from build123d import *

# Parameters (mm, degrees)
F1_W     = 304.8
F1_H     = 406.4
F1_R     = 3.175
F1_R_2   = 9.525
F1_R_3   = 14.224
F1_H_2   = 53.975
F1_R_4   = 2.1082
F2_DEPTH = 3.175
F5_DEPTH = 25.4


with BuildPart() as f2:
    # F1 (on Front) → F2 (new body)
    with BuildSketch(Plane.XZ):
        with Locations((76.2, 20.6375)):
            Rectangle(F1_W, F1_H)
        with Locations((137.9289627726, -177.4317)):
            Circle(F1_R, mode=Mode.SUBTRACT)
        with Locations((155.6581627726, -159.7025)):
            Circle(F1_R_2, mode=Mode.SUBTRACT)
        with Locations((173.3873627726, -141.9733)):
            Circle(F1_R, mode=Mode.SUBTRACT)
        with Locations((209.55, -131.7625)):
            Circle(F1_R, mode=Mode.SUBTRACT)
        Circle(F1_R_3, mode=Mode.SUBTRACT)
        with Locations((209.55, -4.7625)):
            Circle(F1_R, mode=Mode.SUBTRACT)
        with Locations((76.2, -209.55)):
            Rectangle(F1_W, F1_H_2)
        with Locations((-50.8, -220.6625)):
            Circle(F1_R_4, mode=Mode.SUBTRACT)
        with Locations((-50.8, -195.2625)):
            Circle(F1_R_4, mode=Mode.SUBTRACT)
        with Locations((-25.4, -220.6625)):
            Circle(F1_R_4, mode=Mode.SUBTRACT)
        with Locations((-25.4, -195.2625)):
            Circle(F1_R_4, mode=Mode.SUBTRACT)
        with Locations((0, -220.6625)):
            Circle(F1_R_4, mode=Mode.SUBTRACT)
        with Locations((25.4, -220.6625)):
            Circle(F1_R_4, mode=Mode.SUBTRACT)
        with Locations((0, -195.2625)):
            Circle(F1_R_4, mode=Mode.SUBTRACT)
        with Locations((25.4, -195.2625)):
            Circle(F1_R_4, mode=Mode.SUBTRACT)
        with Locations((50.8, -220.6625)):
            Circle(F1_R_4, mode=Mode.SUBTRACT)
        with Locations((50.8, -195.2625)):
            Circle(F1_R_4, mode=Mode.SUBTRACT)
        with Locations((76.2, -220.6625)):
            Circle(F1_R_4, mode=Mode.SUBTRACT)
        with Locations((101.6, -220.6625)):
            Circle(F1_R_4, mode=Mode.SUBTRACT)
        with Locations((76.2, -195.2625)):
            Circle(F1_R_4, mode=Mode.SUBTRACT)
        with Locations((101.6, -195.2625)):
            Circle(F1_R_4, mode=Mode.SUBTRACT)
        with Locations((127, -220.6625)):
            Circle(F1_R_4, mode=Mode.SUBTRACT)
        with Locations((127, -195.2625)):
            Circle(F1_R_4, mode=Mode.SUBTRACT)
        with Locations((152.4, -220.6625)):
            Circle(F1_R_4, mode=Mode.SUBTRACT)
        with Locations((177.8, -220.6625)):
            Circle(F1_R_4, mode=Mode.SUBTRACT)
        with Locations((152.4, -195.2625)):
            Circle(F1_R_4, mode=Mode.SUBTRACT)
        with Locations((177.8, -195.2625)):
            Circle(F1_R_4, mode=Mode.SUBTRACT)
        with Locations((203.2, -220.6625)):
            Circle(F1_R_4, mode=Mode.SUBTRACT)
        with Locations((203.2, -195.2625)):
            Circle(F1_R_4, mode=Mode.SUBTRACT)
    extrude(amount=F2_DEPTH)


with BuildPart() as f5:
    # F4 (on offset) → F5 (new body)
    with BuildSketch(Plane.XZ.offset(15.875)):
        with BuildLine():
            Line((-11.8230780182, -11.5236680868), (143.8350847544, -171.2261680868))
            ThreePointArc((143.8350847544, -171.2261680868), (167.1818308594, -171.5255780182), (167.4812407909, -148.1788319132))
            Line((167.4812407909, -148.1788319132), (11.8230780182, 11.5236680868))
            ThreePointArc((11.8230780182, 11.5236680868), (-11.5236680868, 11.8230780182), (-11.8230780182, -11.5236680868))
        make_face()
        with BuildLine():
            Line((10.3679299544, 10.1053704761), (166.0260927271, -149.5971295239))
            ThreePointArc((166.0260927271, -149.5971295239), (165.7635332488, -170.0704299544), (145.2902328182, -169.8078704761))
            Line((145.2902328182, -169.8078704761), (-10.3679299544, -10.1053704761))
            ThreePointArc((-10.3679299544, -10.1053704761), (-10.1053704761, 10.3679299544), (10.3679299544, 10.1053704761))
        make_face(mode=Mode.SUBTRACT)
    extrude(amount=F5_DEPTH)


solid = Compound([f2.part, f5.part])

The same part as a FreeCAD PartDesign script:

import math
import FreeCAD as App
import Part
import Sketcher

V = App.Vector
Q = App.Units.Quantity


def add_polygon(sketch, points):
    """Adds a closed chain of lines whose ends are joined by coincident constraints."""
    first, n = sketch.GeometryCount, len(points)
    for a, b in zip(points, points[1:] + points[:1]):
        sketch.addGeometry(Part.LineSegment(App.Vector(*a, 0), App.Vector(*b, 0)), False)
    for i in range(n):
        sketch.addConstraint(Sketcher.Constraint("Coincident", first + i, 2, first + (i + 1) % n, 1))

doc = App.newDocument("Part")
params = doc.addObject("Spreadsheet::Sheet", "Params")
for row, (alias, value) in enumerate([
    ("sketch1_diameter", "0.25 in"),
    ("sketch1_diameter2", "0.75 in"),
    ("sketch1_diameter3", "1.12 in"),
    ("sketch1_width", "12 in"),
    ("sketch1_diameter4", "0.166 in"),
    ("pad1_length", "0.125 in"),
    ("sketch2_radius", "0.65 in"),
    ("sketch2_radius2", "0.57 in"),
    ("sketch2_length", "8.78 in"),
    ("pad2_length", "1 in"),
], start=1):
    params.set(f"A{row}", alias)
    params.set(f"B{row}", "=" + value)
    params.setAlias(f"B{row}", alias)

body = doc.addObject("PartDesign::Body", "Body")

# Sketch on XZ plane
sketch1 = doc.addObject("Sketcher::SketchObject", "Sketch")
body.addObject(sketch1)
sketch1.AttachmentSupport = (doc.XZ_Plane, [""])
sketch1.MapMode = "FlatFace"
add_polygon(sketch1, [(-76.2, 223.8), (-76.2, -236.5), (228.6, -236.5), (228.6, 223.8)])  # lines 0-3
sketch1.addGeometry(Part.Circle(V(-50.8, -220.7, 0), V(0, 0, 1), 2.1), False)  # 4
sketch1.addGeometry(Part.Circle(V(-25.4, -220.7, 0), V(0, 0, 1), 2.1), False)  # 5
sketch1.addGeometry(Part.Circle(V(-50.8, -195.3, 0), V(0, 0, 1), 2.1), False)  # 6
sketch1.addGeometry(Part.Circle(V(-25.4, -195.3, 0), V(0, 0, 1), 2.1), False)  # 7
sketch1.addGeometry(Part.Circle(V(0, -220.7, 0), V(0, 0, 1), 2.1), False)  # 8
sketch1.addGeometry(Part.Circle(V(0, -195.3, 0), V(0, 0, 1), 2.1), False)  # 9
sketch1.addGeometry(Part.Circle(V(25.4, -220.7, 0), V(0, 0, 1), 2.1), False)  # 10
sketch1.addGeometry(Part.Circle(V(25.4, -195.3, 0), V(0, 0, 1), 2.1), False)  # 11
sketch1.addGeometry(Part.Circle(V(50.8, -220.7, 0), V(0, 0, 1), 2.1), False)  # 12
sketch1.addGeometry(Part.Circle(V(76.2, -220.7, 0), V(0, 0, 1), 2.1), False)  # 13
sketch1.addGeometry(Part.Circle(V(50.8, -195.3, 0), V(0, 0, 1), 2.1), False)  # 14
sketch1.addGeometry(Part.Circle(V(76.2, -195.3, 0), V(0, 0, 1), 2.1), False)  # 15
sketch1.addGeometry(Part.Circle(V(101.6, -220.7, 0), V(0, 0, 1), 2.1), False)  # 16
sketch1.addGeometry(Part.Circle(V(101.6, -195.3, 0), V(0, 0, 1), 2.1), False)  # 17
sketch1.addGeometry(Part.Circle(V(127, -220.7, 0), V(0, 0, 1), 2.1), False)  # 18
sketch1.addGeometry(Part.Circle(V(127, -195.3, 0), V(0, 0, 1), 2.1), False)  # 19
sketch1.addGeometry(Part.Circle(V(137.9, -177.4, 0), V(0, 0, 1), 3.2), False)  # 20
sketch1.addGeometry(Part.Circle(V(152.4, -220.7, 0), V(0, 0, 1), 2.1), False)  # 21
sketch1.addGeometry(Part.Circle(V(177.8, -220.7, 0), V(0, 0, 1), 2.1), False)  # 22
sketch1.addGeometry(Part.Circle(V(152.4, -195.3, 0), V(0, 0, 1), 2.1), False)  # 23
sketch1.addGeometry(Part.Circle(V(177.8, -195.3, 0), V(0, 0, 1), 2.1), False)  # 24
sketch1.addGeometry(Part.Circle(V(203.2, -220.7, 0), V(0, 0, 1), 2.1), False)  # 25
sketch1.addGeometry(Part.Circle(V(203.2, -195.3, 0), V(0, 0, 1), 2.1), False)  # 26
sketch1.addGeometry(Part.Circle(V(155.7, -159.7, 0), V(0, 0, 1), 9.5), False)  # 27
sketch1.addGeometry(Part.Circle(V(173.4, -142, 0), V(0, 0, 1), 3.2), False)  # 28
sketch1.addGeometry(Part.Circle(V(209.6, -131.8, 0), V(0, 0, 1), 3.2), False)  # 29
sketch1.addGeometry(Part.Circle(V(0, 0, 0), V(0, 0, 1), 14.2), False)  # 30
sketch1.addGeometry(Part.Circle(V(209.6, -4.8, 0), V(0, 0, 1), 3.2), False)  # 31
sketch1.addConstraint(Sketcher.Constraint("Vertical", 0))
sketch1.addConstraint(Sketcher.Constraint("Horizontal", 1))
sketch1.addConstraint(Sketcher.Constraint("Vertical", 2))
sketch1.addConstraint(Sketcher.Constraint("Horizontal", 3))
sketch1.addConstraint(Sketcher.Constraint("Coincident", 30, 3, -1, 1))
sketch1.addConstraint(Sketcher.Constraint("Equal", 4, 5))
sketch1.addConstraint(Sketcher.Constraint("Equal", 5, 6))
sketch1.addConstraint(Sketcher.Constraint("Equal", 6, 7))
sketch1.addConstraint(Sketcher.Constraint("Equal", 7, 8))
sketch1.addConstraint(Sketcher.Constraint("Equal", 8, 9))
sketch1.addConstraint(Sketcher.Constraint("Equal", 9, 10))
sketch1.addConstraint(Sketcher.Constraint("Equal", 10, 11))
sketch1.addConstraint(Sketcher.Constraint("Equal", 11, 12))
sketch1.addConstraint(Sketcher.Constraint("Equal", 12, 13))
sketch1.addConstraint(Sketcher.Constraint("Equal", 13, 14))
sketch1.addConstraint(Sketcher.Constraint("Equal", 14, 15))
sketch1.addConstraint(Sketcher.Constraint("Equal", 15, 16))
sketch1.addConstraint(Sketcher.Constraint("Equal", 16, 17))
sketch1.addConstraint(Sketcher.Constraint("Equal", 17, 18))
sketch1.addConstraint(Sketcher.Constraint("Equal", 18, 19))
sketch1.addConstraint(Sketcher.Constraint("Equal", 19, 21))
sketch1.addConstraint(Sketcher.Constraint("Equal", 21, 22))
sketch1.addConstraint(Sketcher.Constraint("Equal", 22, 23))
sketch1.addConstraint(Sketcher.Constraint("Equal", 23, 24))
sketch1.addConstraint(Sketcher.Constraint("Equal", 24, 25))
sketch1.addConstraint(Sketcher.Constraint("Equal", 25, 26))
sketch1.addConstraint(Sketcher.Constraint("Equal", 20, 28))
sketch1.addConstraint(Sketcher.Constraint("Equal", 28, 29))
sketch1.addConstraint(Sketcher.Constraint("Equal", 29, 31))
sketch1.addConstraint(Sketcher.Constraint("Symmetric", 5, 3, 10, 3, -2))
sketch1.addConstraint(Sketcher.Constraint("Symmetric", 7, 3, 11, 3, -2))
sketch1.addConstraint(Sketcher.Constraint("Symmetric", 4, 3, 12, 3, -2))
sketch1.addConstraint(Sketcher.Constraint("Symmetric", 6, 3, 14, 3, -2))
sketch1.addConstraint(Sketcher.Constraint("PointOnObject", 8, 3, -2))
sketch1.addConstraint(Sketcher.Constraint("PointOnObject", 9, 3, -2))
sketch1.addConstraint(Sketcher.Constraint("Horizontal", 4, 3, 5, 3))
sketch1.addConstraint(Sketcher.Constraint("Horizontal", 6, 3, 7, 3))
sketch1.addConstraint(Sketcher.Constraint("Horizontal", 5, 3, 8, 3))
sketch1.addConstraint(Sketcher.Constraint("Horizontal", 7, 3, 9, 3))
sketch1.addConstraint(Sketcher.Constraint("Horizontal", 12, 3, 13, 3))
sketch1.addConstraint(Sketcher.Constraint("Horizontal", 14, 3, 15, 3))
sketch1.addConstraint(Sketcher.Constraint("Horizontal", 13, 3, 16, 3))
sketch1.addConstraint(Sketcher.Constraint("Horizontal", 15, 3, 17, 3))
sketch1.addConstraint(Sketcher.Constraint("Horizontal", 16, 3, 18, 3))
sketch1.addConstraint(Sketcher.Constraint("Horizontal", 17, 3, 19, 3))
sketch1.addConstraint(Sketcher.Constraint("Horizontal", 18, 3, 21, 3))
sketch1.addConstraint(Sketcher.Constraint("Horizontal", 21, 3, 22, 3))
sketch1.addConstraint(Sketcher.Constraint("Horizontal", 19, 3, 23, 3))
sketch1.addConstraint(Sketcher.Constraint("Horizontal", 23, 3, 24, 3))
sketch1.addConstraint(Sketcher.Constraint("Horizontal", 22, 3, 25, 3))
sketch1.addConstraint(Sketcher.Constraint("Horizontal", 24, 3, 26, 3))
sketch1.addConstraint(Sketcher.Constraint("Vertical", 4, 3, 6, 3))
sketch1.addConstraint(Sketcher.Constraint("Vertical", 5, 3, 7, 3))
sketch1.addConstraint(Sketcher.Constraint("Vertical", 13, 3, 15, 3))
sketch1.addConstraint(Sketcher.Constraint("Vertical", 16, 3, 17, 3))
sketch1.addConstraint(Sketcher.Constraint("Vertical", 18, 3, 19, 3))
sketch1.addConstraint(Sketcher.Constraint("Vertical", 21, 3, 23, 3))
sketch1.addConstraint(Sketcher.Constraint("Vertical", 22, 3, 24, 3))
sketch1.addConstraint(Sketcher.Constraint("Vertical", 25, 3, 26, 3))
sketch1.addConstraint(Sketcher.Constraint("Vertical", 29, 3, 31, 3))
sketch1.addConstraint(Sketcher.Constraint("Diameter", 20, Q("0.25 in")))
sketch1.addConstraint(Sketcher.Constraint("Diameter", 27, Q("0.75 in")))
sketch1.addConstraint(Sketcher.Constraint("Diameter", 30, Q("1.12 in")))
sketch1.addConstraint(Sketcher.Constraint("DistanceX", 1, 1, 1, 2, Q("12 in")))
sketch1.addConstraint(Sketcher.Constraint("Diameter", 4, Q("0.166 in")))
sketch1.addConstraint(Sketcher.Constraint("DistanceX", 4, 3, -1, 1, Q("2 in")))
sketch1.addConstraint(Sketcher.Constraint("DistanceX", 5, 3, -1, 1, Q("1 in")))
sketch1.addConstraint(Sketcher.Constraint("DistanceX", -1, 1, 13, 3, Q("3 in")))
sketch1.addConstraint(Sketcher.Constraint("DistanceX", -1, 1, 16, 3, Q("4 in")))
sketch1.addConstraint(Sketcher.Constraint("DistanceX", -1, 1, 18, 3, Q("5 in")))
sketch1.addConstraint(Sketcher.Constraint("DistanceX", -1, 1, 21, 3, Q("6 in")))
sketch1.addConstraint(Sketcher.Constraint("DistanceX", -1, 1, 22, 3, Q("7 in")))
sketch1.addConstraint(Sketcher.Constraint("DistanceX", -1, 1, 25, 3, Q("8 in")))
sketch1.addConstraint(Sketcher.Constraint("DistanceX", 0, 2, -1, 1, Q("3 in")))
sketch1.addConstraint(Sketcher.Constraint("DistanceY", 4, 3, 6, 3, Q("1 in")))
sketch1.addConstraint(Sketcher.Constraint("DistanceY", 29, 3, 31, 3, Q("5 in")))
sketch1.addConstraint(Sketcher.Constraint("DistanceY", 31, 3, 2, 2, Q("9 in")))
sketch1.addConstraint(Sketcher.Constraint("DistanceY", 23, 3, 27, 3, Q("1.4 in")))
sketch1.addConstraint(Sketcher.Constraint("DistanceY", 27, 3, 29, 3, Q("1.1 in")))
sketch1.addConstraint(Sketcher.Constraint("DistanceY", 0, 2, 0, 1, Q("18.125 in")))
sketch1.addConstraint(Sketcher.Constraint("DistanceX", -1, 1, 29, 3, Q("8.25 in")))
sketch1.addConstraint(Sketcher.Constraint("DistanceY", 4, 3, -1, 1, Q("8.6875 in")))
sketch1.addConstraint(Sketcher.Constraint("DistanceY", 19, 3, 20, 3, Q("0.702 in")))
sketch1.addConstraint(Sketcher.Constraint("DistanceX", 20, 3, 27, 3, Q("0.698 in")))
sketch1.addConstraint(Sketcher.Constraint("DistanceX", 27, 3, 28, 3, Q("0.698 in")))
sketch1.addConstraint(Sketcher.Constraint("DistanceY", 27, 3, 28, 3, Q("0.698 in")))
sketch1.addConstraint(Sketcher.Constraint("DistanceX", -1, 1, 20, 3, Q("137.928963 mm")))
sketch1.setExpression("Constraints[64]", "Params.sketch1_diameter")
sketch1.setExpression("Constraints[65]", "Params.sketch1_diameter2")
sketch1.setExpression("Constraints[66]", "Params.sketch1_diameter3")
sketch1.setExpression("Constraints[67]", "Params.sketch1_width")
sketch1.setExpression("Constraints[68]", "Params.sketch1_diameter4")
pad1 = doc.addObject("PartDesign::Pad", "Pad")
body.addObject(pad1)
pad1.Profile = sketch1
pad1.setExpression("Length", "Params.pad1_length")
body2 = doc.addObject("PartDesign::Body", "Body001")

# Sketch on XZ plane
sketch2 = doc.addObject("Sketcher::SketchObject", "Sketch001")
body2.addObject(sketch2)
sketch2.AttachmentSupport = (doc.getObject("XZ_Plane001"), [""])
sketch2.MapMode = "FlatFace"
sketch2.AttachmentOffset = App.Placement(V(0, 0, 0.625 * 25.4), App.Rotation())
sketch2.addGeometry(Part.LineSegment(V(-12, -12, 0), V(144, -171, 0)), False)
sketch2.addGeometry(Part.ArcOfCircle(Part.Circle(V(156, -160, 0), V(0, 0, 1), 17), math.radians(-136), math.radians(44)), False)
sketch2.addGeometry(Part.LineSegment(V(167, -148, 0), V(12, 12, 0)), False)
sketch2.addGeometry(Part.ArcOfCircle(Part.Circle(V(0, 0, 0), V(0, 0, 1), 17), math.radians(44), math.radians(224)), False)
sketch2.addGeometry(Part.ArcOfCircle(Part.Circle(V(0, 0, 0), V(0, 0, 1), 14), math.radians(44), math.radians(224)), False)
sketch2.addGeometry(Part.LineSegment(V(10, 10, 0), V(166, -150, 0)), False)
sketch2.addGeometry(Part.ArcOfCircle(Part.Circle(V(156, -160, 0), V(0, 0, 1), 14), math.radians(-136), math.radians(44)), False)
sketch2.addGeometry(Part.LineSegment(V(145, -170, 0), V(-10, -10, 0)), False)
sketch2.addConstraint(Sketcher.Constraint("Tangent", 0, 2, 1, 1))
sketch2.addConstraint(Sketcher.Constraint("Tangent", 1, 2, 2, 1))
sketch2.addConstraint(Sketcher.Constraint("Tangent", 2, 2, 3, 1))
sketch2.addConstraint(Sketcher.Constraint("Tangent", 3, 2, 0, 1))
sketch2.addConstraint(Sketcher.Constraint("Tangent", 4, 1, 5, 1))
sketch2.addConstraint(Sketcher.Constraint("Tangent", 5, 2, 6, 2))
sketch2.addConstraint(Sketcher.Constraint("Tangent", 6, 1, 7, 1))
sketch2.addConstraint(Sketcher.Constraint("Tangent", 7, 2, 4, 2))
sketch2.addConstraint(Sketcher.Constraint("Coincident", 3, 3, -1, 1))
sketch2.addConstraint(Sketcher.Constraint("Coincident", 4, 3, -1, 1))
sketch2.addConstraint(Sketcher.Constraint("Coincident", 6, 3, 1, 3))
sketch2.addConstraint(Sketcher.Constraint("Equal", 1, 3))
sketch2.addConstraint(Sketcher.Constraint("Equal", 4, 6))
sketch2.addConstraint(Sketcher.Constraint("Radius", 1, Q("0.65 in")))
sketch2.addConstraint(Sketcher.Constraint("Radius", 4, Q("0.57 in")))
sketch2.addConstraint(Sketcher.Constraint("Distance", 0, Q("8.78 in")))
sketch2.addConstraint(Sketcher.Constraint("DistanceY", 1, 3, -1, 1, Q("6.2875 in")))
sketch2.setExpression("Constraints[13]", "Params.sketch2_radius")
sketch2.setExpression("Constraints[14]", "Params.sketch2_radius2")
sketch2.setExpression("Constraints[15]", "Params.sketch2_length")
pad2 = doc.addObject("PartDesign::Pad", "Pad001")
body2.addObject(pad2)
pad2.Profile = sketch2
pad2.setExpression("Length", "Params.pad2_length")

doc.recompute()
